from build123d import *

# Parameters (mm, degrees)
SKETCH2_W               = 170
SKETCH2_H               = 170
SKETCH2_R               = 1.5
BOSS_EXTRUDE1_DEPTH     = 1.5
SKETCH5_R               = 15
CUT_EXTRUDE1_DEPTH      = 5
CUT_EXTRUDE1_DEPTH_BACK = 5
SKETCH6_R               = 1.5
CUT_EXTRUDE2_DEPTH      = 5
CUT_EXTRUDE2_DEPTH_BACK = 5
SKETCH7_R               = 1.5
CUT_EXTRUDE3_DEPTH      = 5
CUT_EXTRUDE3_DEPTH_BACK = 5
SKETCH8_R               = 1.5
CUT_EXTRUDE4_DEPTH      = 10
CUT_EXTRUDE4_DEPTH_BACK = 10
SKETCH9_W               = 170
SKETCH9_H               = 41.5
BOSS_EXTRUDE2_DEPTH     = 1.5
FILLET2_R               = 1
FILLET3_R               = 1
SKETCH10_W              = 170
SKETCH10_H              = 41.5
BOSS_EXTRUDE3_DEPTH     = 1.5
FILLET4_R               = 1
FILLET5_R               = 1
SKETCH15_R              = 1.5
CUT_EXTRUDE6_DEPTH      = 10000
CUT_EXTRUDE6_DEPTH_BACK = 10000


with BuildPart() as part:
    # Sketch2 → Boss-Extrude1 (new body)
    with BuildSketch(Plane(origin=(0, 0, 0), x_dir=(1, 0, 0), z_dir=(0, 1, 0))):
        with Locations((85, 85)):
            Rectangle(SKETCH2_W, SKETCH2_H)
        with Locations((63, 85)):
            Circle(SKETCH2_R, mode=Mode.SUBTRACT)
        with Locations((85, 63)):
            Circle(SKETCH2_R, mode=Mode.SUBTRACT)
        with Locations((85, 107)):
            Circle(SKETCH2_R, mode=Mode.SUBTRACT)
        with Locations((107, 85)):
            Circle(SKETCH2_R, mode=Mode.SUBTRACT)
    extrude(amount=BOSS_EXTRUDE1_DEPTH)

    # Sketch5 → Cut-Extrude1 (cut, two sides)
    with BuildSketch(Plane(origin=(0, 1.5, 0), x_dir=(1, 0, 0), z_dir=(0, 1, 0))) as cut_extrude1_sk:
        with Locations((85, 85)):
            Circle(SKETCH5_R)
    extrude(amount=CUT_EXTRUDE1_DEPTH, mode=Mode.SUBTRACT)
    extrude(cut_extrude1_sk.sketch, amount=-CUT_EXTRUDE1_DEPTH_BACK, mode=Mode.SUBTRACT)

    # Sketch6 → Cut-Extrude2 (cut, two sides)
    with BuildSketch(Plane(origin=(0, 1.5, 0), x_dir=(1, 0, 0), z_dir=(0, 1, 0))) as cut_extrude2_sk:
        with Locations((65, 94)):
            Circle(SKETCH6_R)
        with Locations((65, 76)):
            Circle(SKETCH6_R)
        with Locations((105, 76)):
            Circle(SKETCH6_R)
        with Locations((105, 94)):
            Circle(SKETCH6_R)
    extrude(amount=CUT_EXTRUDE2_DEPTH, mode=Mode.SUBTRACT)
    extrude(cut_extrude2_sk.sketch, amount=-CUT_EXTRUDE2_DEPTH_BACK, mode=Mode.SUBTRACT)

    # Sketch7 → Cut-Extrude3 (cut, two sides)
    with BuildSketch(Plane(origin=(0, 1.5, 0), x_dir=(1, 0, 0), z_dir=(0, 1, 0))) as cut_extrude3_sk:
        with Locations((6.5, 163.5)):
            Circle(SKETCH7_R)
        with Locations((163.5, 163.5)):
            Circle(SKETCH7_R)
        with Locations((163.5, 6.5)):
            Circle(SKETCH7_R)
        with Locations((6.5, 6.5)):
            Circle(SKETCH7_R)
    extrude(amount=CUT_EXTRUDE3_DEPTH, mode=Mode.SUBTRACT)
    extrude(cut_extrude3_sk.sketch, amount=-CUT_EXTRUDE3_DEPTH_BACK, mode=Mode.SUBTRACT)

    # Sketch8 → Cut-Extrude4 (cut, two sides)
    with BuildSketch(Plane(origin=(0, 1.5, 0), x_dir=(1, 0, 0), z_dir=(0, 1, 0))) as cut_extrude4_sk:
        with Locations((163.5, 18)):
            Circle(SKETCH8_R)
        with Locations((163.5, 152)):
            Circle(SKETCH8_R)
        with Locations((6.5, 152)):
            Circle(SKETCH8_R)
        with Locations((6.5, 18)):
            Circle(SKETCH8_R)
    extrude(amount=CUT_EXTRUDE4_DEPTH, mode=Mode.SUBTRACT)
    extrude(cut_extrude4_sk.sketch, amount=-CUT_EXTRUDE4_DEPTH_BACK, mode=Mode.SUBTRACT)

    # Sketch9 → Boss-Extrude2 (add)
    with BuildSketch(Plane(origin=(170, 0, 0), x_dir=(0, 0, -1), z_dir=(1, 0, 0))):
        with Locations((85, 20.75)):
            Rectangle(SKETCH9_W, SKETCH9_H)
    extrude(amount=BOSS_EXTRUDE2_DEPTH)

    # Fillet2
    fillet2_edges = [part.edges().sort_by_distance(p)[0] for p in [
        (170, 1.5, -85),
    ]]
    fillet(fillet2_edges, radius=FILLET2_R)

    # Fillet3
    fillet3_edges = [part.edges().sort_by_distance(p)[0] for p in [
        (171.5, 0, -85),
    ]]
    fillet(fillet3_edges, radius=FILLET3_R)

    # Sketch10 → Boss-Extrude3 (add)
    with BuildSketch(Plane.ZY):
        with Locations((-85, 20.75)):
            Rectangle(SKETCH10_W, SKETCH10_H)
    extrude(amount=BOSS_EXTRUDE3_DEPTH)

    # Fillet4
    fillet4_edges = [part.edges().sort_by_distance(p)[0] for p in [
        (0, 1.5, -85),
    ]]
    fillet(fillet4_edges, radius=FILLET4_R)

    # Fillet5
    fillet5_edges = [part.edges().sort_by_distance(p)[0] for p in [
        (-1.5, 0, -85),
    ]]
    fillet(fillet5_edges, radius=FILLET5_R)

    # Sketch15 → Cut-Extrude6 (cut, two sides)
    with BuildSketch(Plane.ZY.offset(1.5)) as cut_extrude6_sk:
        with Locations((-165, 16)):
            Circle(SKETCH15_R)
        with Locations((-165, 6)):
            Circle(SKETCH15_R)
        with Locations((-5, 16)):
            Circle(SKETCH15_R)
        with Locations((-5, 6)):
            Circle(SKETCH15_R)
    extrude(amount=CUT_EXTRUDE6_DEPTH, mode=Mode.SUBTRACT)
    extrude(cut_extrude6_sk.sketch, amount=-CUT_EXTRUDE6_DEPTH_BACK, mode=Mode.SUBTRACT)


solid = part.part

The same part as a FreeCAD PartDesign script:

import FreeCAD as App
import Part
import Sketcher
Q = App.Units.Quantity


def edges_at(feature, points):
    """Names of the edges that pass closest to the given points."""
    edges = feature.Shape.Edges
    near = lambda p: min(range(len(edges)), key=lambda i: edges[i].distToShape(Part.Vertex(*p))[0])
    return sorted({f"Edge{near(p) + 1}" for p in points})


def add_polygon(sketch, points):
    """Adds a closed chain of lines whose ends are joined by coincident constraints."""
    first, n = sketch.GeometryCount, len(points)
    for a, b in zip(points, points[1:] + points[:1]):
        sketch.addGeometry(Part.LineSegment(App.Vector(*a, 0), App.Vector(*b, 0)), False)
    for i in range(n):
        sketch.addConstraint(Sketcher.Constraint("Coincident", first + i, 2, first + (i + 1) % n, 1))

doc = App.newDocument("Part")
body = doc.addObject("PartDesign::Body", "Body")

# Sketch on XZ plane
sketch1 = body.newObject("Sketcher::SketchObject", "Sketch")
sketch1.AttachmentSupport = (doc.getObject("XZ_Plane"), [""])
sketch1.MapMode = "FlatFace"
add_polygon(sketch1, [(0, -170), (0, 0), (170, 0), (170, -170)])  # lines 0-3
sketch1.addGeometry(Part.Circle(App.Vector(85, -63, 0), App.Vector(0, 0, 1), 1.5), False)  # 4
sketch1.addGeometry(Part.Circle(App.Vector(63, -85, 0), App.Vector(0, 0, 1), 1.5), False)  # 5
sketch1.addGeometry(Part.Circle(App.Vector(107, -85, 0), App.Vector(0, 0, 1), 1.5), False)  # 6
sketch1.addGeometry(Part.Circle(App.Vector(85, -107, 0), App.Vector(0, 0, 1), 1.5), False)  # 7
sketch1.addConstraint(Sketcher.Constraint("Vertical", 0))
sketch1.addConstraint(Sketcher.Constraint("Horizontal", 1))
sketch1.addConstraint(Sketcher.Constraint("Vertical", 2))
sketch1.addConstraint(Sketcher.Constraint("Horizontal", 3))
sketch1.addConstraint(Sketcher.Constraint("Coincident", 0, 2, -1, 1))
sketch1.addConstraint(Sketcher.Constraint("Equal", 4, 5))
sketch1.addConstraint(Sketcher.Constraint("Equal", 5, 6))
sketch1.addConstraint(Sketcher.Constraint("Equal", 6, 7))
sketch1.addConstraint(Sketcher.Constraint("Horizontal", 5, 3, 6, 3))
sketch1.addConstraint(Sketcher.Constraint("Vertical", 4, 3, 7, 3))
sketch1.addConstraint(Sketcher.Constraint("Equal", 3, 0))
sketch1.addConstraint(Sketcher.Constraint("Diameter", 4, Q("3 mm")))
sketch1.addConstraint(Sketcher.Constraint("DistanceX", 1, 1, 1, 2, Q("170 mm")))
sketch1.addConstraint(Sketcher.Constraint("DistanceX", -1, 1, 4, 3, Q("85 mm")))
sketch1.addConstraint(Sketcher.Constraint("DistanceY", 4, 3, -1, 1, Q("63 mm")))
sketch1.addConstraint(Sketcher.Constraint("DistanceX", -1, 1, 5, 3, Q("63 mm")))
sketch1.addConstraint(Sketcher.Constraint("DistanceY", 5, 3, -1, 1, Q("85 mm")))
sketch1.addConstraint(Sketcher.Constraint("DistanceX", -1, 1, 6, 3, Q("107 mm")))
sketch1.addConstraint(Sketcher.Constraint("DistanceY", 7, 3, -1, 1, Q("107 mm")))
pad1 = body.newObject("PartDesign::Pad", "Pad")
pad1.Profile = sketch1
pad1.Length = 1.5
pad1.Reversed = True

# Sketch on XZ plane
sketch2 = body.newObject("Sketcher::SketchObject", "Sketch001")
sketch2.AttachmentSupport = (doc.getObject("XZ_Plane"), [""])
sketch2.MapMode = "FlatFace"
sketch2.AttachmentOffset = App.Placement(App.Vector(0, 0, -1.5), App.Rotation())
sketch2.addGeometry(Part.Circle(App.Vector(85, -85, 0), App.Vector(0, 0, 1), 15), False)
sketch2.addConstraint(Sketcher.Constraint("Diameter", 0, Q("30 mm")))
sketch2.addConstraint(Sketcher.Constraint("DistanceX", -1, 1, 0, 3, Q("85 mm")))
sketch2.addConstraint(Sketcher.Constraint("DistanceY", 0, 3, -1, 1, Q("85 mm")))
pocket1 = body.newObject("PartDesign::Pocket", "Pocket")
pocket1.Profile = sketch2
pocket1.Type = "ThroughAll"
pocket1.Midplane = True

# Sketch on XZ plane
sketch3 = body.newObject("Sketcher::SketchObject", "Sketch002")
sketch3.AttachmentSupport = (doc.getObject("XZ_Plane"), [""])
sketch3.MapMode = "FlatFace"
sketch3.AttachmentOffset = App.Placement(App.Vector(0, 0, -1.5), App.Rotation())
sketch3.addGeometry(Part.Circle(App.Vector(65, -94, 0), App.Vector(0, 0, 1), 1.5), False)
sketch3.addGeometry(Part.Circle(App.Vector(65, -76, 0), App.Vector(0, 0, 1), 1.5), False)
sketch3.addGeometry(Part.Circle(App.Vector(105, -76, 0), App.Vector(0, 0, 1), 1.5), False)
sketch3.addGeometry(Part.Circle(App.Vector(105, -94, 0), App.Vector(0, 0, 1), 1.5), False)
sketch3.addConstraint(Sketcher.Constraint("Equal", 0, 1))
sketch3.addConstraint(Sketcher.Constraint("Equal", 1, 2))
sketch3.addConstraint(Sketcher.Constraint("Equal", 2, 3))
sketch3.addConstraint(Sketcher.Constraint("Horizontal", 1, 3, 2, 3))
sketch3.addConstraint(Sketcher.Constraint("Horizontal", 0, 3, 3, 3))
sketch3.addConstraint(Sketcher.Constraint("Vertical", 0, 3, 1, 3))
sketch3.addConstraint(Sketcher.Constraint("Vertical", 2, 3, 3, 3))
sketch3.addConstraint(Sketcher.Constraint("Diameter", 0, Q("3 mm")))
sketch3.addConstraint(Sketcher.Constraint("DistanceX", -1, 1, 0, 3, Q("65 mm")))
sketch3.addConstraint(Sketcher.Constraint("DistanceY", 0, 3, -1, 1, Q("94 mm")))
sketch3.addConstraint(Sketcher.Constraint("DistanceY", 1, 3, -1, 1, Q("76 mm")))
sketch3.addConstraint(Sketcher.Constraint("DistanceX", -1, 1, 2, 3, Q("105 mm")))
pocket2 = body.newObject("PartDesign::Pocket", "Pocket001")
pocket2.Profile = sketch3
pocket2.Type = "ThroughAll"
pocket2.Midplane = True

# Sketch on XZ plane
sketch4 = body.newObject("Sketcher::SketchObject", "Sketch003")
sketch4.AttachmentSupport = (doc.getObject("XZ_Plane"), [""])
sketch4.MapMode = "FlatFace"
sketch4.AttachmentOffset = App.Placement(App.Vector(0, 0, -1.5), App.Rotation())
sketch4.addGeometry(Part.Circle(App.Vector(6.5, -163.5, 0), App.Vector(0, 0, 1), 1.5), False)
sketch4.addGeometry(Part.Circle(App.Vector(163.5, -163.5, 0), App.Vector(0, 0, 1), 1.5), False)
sketch4.addGeometry(Part.Circle(App.Vector(163.5, -6.5, 0), App.Vector(0, 0, 1), 1.5), False)
sketch4.addGeometry(Part.Circle(App.Vector(6.5, -6.5, 0), App.Vector(0, 0, 1), 1.5), False)
sketch4.addConstraint(Sketcher.Constraint("Equal", 0, 1))
sketch4.addConstraint(Sketcher.Constraint("Equal", 1, 2))
sketch4.addConstraint(Sketcher.Constraint("Equal", 2, 3))
sketch4.addConstraint(Sketcher.Constraint("Horizontal", 0, 3, 1, 3))
sketch4.addConstraint(Sketcher.Constraint("Horizontal", 2, 3, 3, 3))
sketch4.addConstraint(Sketcher.Constraint("Vertical", 1, 3, 2, 3))
sketch4.addConstraint(Sketcher.Constraint("Vertical", 0, 3, 3, 3))
sketch4.addConstraint(Sketcher.Constraint("Diameter", 0, Q("3 mm")))
sketch4.addConstraint(Sketcher.Constraint("DistanceX", 0, 3, 1, 3, Q("157 mm")))
sketch4.addConstraint(Sketcher.Constraint("DistanceY", 1, 3, 2, 3, Q("157 mm")))
sketch4.addConstraint(Sketcher.Constraint("DistanceX", -1, 1, 0, 3, Q("6.5 mm")))
sketch4.addConstraint(Sketcher.Constraint("DistanceY", 0, 3, -1, 1, Q("163.5 mm")))
pocket3 = body.newObject("PartDesign::Pocket", "Pocket002")
pocket3.Profile = sketch4
pocket3.Type = "ThroughAll"
pocket3.Midplane = True

# Sketch on XZ plane
sketch5 = body.newObject("Sketcher::SketchObject", "Sketch004")
sketch5.AttachmentSupport = (doc.getObject("XZ_Plane"), [""])
sketch5.MapMode = "FlatFace"
sketch5.AttachmentOffset = App.Placement(App.Vector(0, 0, -1.5), App.Rotation())
sketch5.addGeometry(Part.Circle(App.Vector(163.5, -18, 0), App.Vector(0, 0, 1), 1.5), False)
sketch5.addGeometry(Part.Circle(App.Vector(163.5, -152, 0), App.Vector(0, 0, 1), 1.5), False)
sketch5.addGeometry(Part.Circle(App.Vector(6.5, -152, 0), App.Vector(0, 0, 1), 1.5), False)
sketch5.addGeometry(Part.Circle(App.Vector(6.5, -18, 0), App.Vector(0, 0, 1), 1.5), False)
sketch5.addConstraint(Sketcher.Constraint("Equal", 0, 1))
sketch5.addConstraint(Sketcher.Constraint("Equal", 1, 2))
sketch5.addConstraint(Sketcher.Constraint("Equal", 2, 3))
sketch5.addConstraint(Sketcher.Constraint("Horizontal", 1, 3, 2, 3))
sketch5.addConstraint(Sketcher.Constraint("Horizontal", 0, 3, 3, 3))
sketch5.addConstraint(Sketcher.Constraint("Vertical", 0, 3, 1, 3))
sketch5.addConstraint(Sketcher.Constraint("Vertical", 2, 3, 3, 3))
sketch5.addConstraint(Sketcher.Constraint("Diameter", 0, Q("3 mm")))
sketch5.addConstraint(Sketcher.Constraint("DistanceY", 0, 3, -1, 1, Q("18 mm")))
sketch5.addConstraint(Sketcher.Constraint("DistanceY", 1, 3, -1, 1, Q("152 mm")))
sketch5.addConstraint(Sketcher.Constraint("DistanceX", 2, 3, 1, 3, Q("157 mm")))
sketch5.addConstraint(Sketcher.Constraint("DistanceX", -1, 1, 0, 3, Q("163.5 mm")))
pocket4 = body.newObject("PartDesign::Pocket", "Pocket003")
pocket4.Profile = sketch5
pocket4.Type = "ThroughAll"
pocket4.Midplane = True

# Sketch on YZ plane
sketch6 = body.newObject("Sketcher::SketchObject", "Sketch005")
sketch6.AttachmentSupport = (doc.getObject("YZ_Plane"), [""])
sketch6.MapMode = "FlatFace"
sketch6.AttachmentOffset = App.Placement(App.Vector(0, 0, 170), App.Rotation())
add_polygon(sketch6, [(42, 0), (0, 0), (0, -170), (42, -170)])  # lines 0-3
sketch6.addConstraint(Sketcher.Constraint("Horizontal", 0))
sketch6.addConstraint(Sketcher.Constraint("Vertical", 1))
sketch6.addConstraint(Sketcher.Constraint("Horizontal", 2))
sketch6.addConstraint(Sketcher.Constraint("Vertical", 3))
sketch6.addConstraint(Sketcher.Constraint("Coincident", 0, 2, -1, 1))
sketch6.addConstraint(Sketcher.Constraint("DistanceY", 1, 2, 1, 1, Q("170 mm")))
sketch6.addConstraint(Sketcher.Constraint("DistanceX", 0, 2, 0, 1, Q("41.5 mm")))
pad2 = body.newObject("PartDesign::Pad", "Pad001")
pad2.Profile = sketch6
pad2.Length = 1.5
doc.recompute()

fillet = body.newObject("PartDesign::Fillet", "Fillet")
fillet.Base = (pad2, edges_at(pad2, [(170, 1.5, -85)]))
fillet.Radius = 1
doc.recompute()

fillet2 = body.newObject("PartDesign::Fillet", "Fillet001")
fillet2.Base = (fillet, edges_at(fillet, [(171.5, 0, -85)]))
fillet2.Radius = 1

# Sketch on YZ plane
sketch7 = body.newObject("Sketcher::SketchObject", "Sketch006")
sketch7.AttachmentSupport = (doc.getObject("YZ_Plane"), [""])
sketch7.MapMode = "FlatFace"
add_polygon(sketch7, [(42, -170), (0, -170), (0, 0), (42, 0)])  # lines 0-3
sketch7.addConstraint(Sketcher.Constraint("Horizontal", 0))
sketch7.addConstraint(Sketcher.Constraint("Vertical", 1))
sketch7.addConstraint(Sketcher.Constraint("Horizontal", 2))
sketch7.addConstraint(Sketcher.Constraint("Vertical", 3))
sketch7.addConstraint(Sketcher.Constraint("Coincident", 1, 2, -1, 1))
sketch7.addConstraint(Sketcher.Constraint("DistanceY", 1, 1, 1, 2, Q("170 mm")))
sketch7.addConstraint(Sketcher.Constraint("DistanceX", 0, 2, 0, 1, Q("41.5 mm")))
pad3 = body.newObject("PartDesign::Pad", "Pad002")
pad3.Profile = sketch7
pad3.Length = 1.5
pad3.Reversed = True
doc.recompute()

fillet3 = body.newObject("PartDesign::Fillet", "Fillet002")
fillet3.Base = (pad3, edges_at(pad3, [(0, 1.5, -85)]))
fillet3.Radius = 1
doc.recompute()

fillet4 = body.newObject("PartDesign::Fillet", "Fillet003")
fillet4.Base = (fillet3, edges_at(fillet3, [(-1.5, 0, -85)]))
fillet4.Radius = 1

# Sketch on YZ plane
sketch8 = body.newObject("Sketcher::SketchObject", "Sketch007")
sketch8.AttachmentSupport = (doc.getObject("YZ_Plane"), [""])
sketch8.MapMode = "FlatFace"
sketch8.AttachmentOffset = App.Placement(App.Vector(0, 0, -1.5), App.Rotation())
sketch8.addGeometry(Part.Circle(App.Vector(16, -165, 0), App.Vector(0, 0, 1), 1.5), False)
sketch8.addGeometry(Part.Circle(App.Vector(6, -165, 0), App.Vector(0, 0, 1), 1.5), False)
sketch8.addGeometry(Part.Circle(App.Vector(16, -5, 0), App.Vector(0, 0, 1), 1.5), False)
sketch8.addGeometry(Part.Circle(App.Vector(6, -5, 0), App.Vector(0, 0, 1), 1.5), False)
sketch8.addConstraint(Sketcher.Constraint("Equal", 0, 1))
sketch8.addConstraint(Sketcher.Constraint("Equal", 1, 2))
sketch8.addConstraint(Sketcher.Constraint("Equal", 2, 3))
sketch8.addConstraint(Sketcher.Constraint("Horizontal", 0, 3, 1, 3))
sketch8.addConstraint(Sketcher.Constraint("Horizontal", 2, 3, 3, 3))
sketch8.addConstraint(Sketcher.Constraint("Vertical", 0, 3, 2, 3))
sketch8.addConstraint(Sketcher.Constraint("Vertical", 1, 3, 3, 3))
sketch8.addConstraint(Sketcher.Constraint("Diameter", 0, Q("3 mm")))
sketch8.addConstraint(Sketcher.Constraint("DistanceX", -1, 1, 0, 3, Q("16 mm")))
sketch8.addConstraint(Sketcher.Constraint("DistanceY", 0, 3, -1, 1, Q("165 mm")))
sketch8.addConstraint(Sketcher.Constraint("DistanceX", -1, 1, 1, 3, Q("6 mm")))
sketch8.addConstraint(Sketcher.Constraint("DistanceY", 2, 3, -1, 1, Q("5 mm")))
pocket5 = body.newObject("PartDesign::Pocket", "Pocket004")
pocket5.Profile = sketch8
pocket5.Type = "ThroughAll"
pocket5.Midplane = True

doc.recompute()
